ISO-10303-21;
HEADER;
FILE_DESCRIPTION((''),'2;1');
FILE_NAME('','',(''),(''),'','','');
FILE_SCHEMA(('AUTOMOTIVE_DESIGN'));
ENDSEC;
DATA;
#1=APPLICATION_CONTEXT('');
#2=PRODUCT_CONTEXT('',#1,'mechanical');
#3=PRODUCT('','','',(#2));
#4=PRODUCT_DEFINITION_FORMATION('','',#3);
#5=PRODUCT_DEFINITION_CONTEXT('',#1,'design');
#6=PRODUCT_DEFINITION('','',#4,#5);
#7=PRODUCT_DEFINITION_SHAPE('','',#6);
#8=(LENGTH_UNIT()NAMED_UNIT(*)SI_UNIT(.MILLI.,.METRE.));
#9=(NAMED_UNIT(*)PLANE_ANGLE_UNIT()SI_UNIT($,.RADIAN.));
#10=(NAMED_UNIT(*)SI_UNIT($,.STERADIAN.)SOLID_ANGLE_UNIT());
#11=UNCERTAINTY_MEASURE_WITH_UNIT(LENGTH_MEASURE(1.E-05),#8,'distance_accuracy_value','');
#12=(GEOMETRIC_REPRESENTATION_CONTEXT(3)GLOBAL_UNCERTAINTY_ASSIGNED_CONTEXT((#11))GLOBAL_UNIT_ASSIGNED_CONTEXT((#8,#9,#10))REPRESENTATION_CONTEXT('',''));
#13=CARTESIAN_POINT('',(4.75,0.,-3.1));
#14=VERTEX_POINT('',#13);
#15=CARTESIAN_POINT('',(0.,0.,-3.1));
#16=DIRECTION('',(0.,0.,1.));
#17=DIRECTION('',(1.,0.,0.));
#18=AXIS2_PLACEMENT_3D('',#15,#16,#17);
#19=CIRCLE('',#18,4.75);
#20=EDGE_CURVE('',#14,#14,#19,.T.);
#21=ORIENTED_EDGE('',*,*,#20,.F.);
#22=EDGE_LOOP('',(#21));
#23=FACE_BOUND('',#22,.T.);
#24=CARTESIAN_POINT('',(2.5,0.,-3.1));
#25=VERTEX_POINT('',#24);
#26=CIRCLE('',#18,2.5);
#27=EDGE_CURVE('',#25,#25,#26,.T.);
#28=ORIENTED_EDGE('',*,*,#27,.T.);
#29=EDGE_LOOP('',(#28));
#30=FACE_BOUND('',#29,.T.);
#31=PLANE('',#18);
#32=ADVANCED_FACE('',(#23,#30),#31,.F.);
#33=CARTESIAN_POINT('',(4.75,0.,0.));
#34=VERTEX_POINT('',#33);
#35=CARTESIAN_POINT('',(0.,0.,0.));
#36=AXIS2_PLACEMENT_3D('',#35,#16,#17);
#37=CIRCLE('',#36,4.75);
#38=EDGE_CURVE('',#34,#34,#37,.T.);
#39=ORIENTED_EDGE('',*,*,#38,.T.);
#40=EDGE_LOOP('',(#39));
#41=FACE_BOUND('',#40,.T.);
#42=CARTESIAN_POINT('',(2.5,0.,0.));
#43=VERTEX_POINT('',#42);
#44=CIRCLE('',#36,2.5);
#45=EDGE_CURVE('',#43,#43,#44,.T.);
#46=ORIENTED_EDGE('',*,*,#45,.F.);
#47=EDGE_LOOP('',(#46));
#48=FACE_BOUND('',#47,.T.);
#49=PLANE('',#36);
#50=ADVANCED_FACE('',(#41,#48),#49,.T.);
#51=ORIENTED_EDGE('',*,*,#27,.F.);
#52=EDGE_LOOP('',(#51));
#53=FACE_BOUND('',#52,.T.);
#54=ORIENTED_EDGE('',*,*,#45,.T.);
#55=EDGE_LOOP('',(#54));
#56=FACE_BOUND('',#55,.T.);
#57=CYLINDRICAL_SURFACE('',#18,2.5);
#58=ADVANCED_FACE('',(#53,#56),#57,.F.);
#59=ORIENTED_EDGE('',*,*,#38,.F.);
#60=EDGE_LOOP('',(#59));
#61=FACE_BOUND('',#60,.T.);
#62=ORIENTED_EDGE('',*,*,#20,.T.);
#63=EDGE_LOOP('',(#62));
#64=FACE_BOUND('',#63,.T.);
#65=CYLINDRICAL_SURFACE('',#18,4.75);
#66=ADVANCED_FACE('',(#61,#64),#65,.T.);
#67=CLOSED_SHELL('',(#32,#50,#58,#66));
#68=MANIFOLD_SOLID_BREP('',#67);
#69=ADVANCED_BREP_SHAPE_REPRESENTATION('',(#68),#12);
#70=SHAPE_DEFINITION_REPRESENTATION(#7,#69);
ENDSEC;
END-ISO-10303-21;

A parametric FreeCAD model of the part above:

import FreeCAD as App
import Part
import Sketcher

doc = App.newDocument("Part")
body = doc.addObject("PartDesign::Body", "Body")

# Sketch on XY plane
sketch1 = doc.addObject("Sketcher::SketchObject", "Sketch")
body.addObject(sketch1)
sketch1.AttachmentSupport = (doc.XY_Plane, [""])
sketch1.MapMode = "FlatFace"
sketch1.addGeometry(Part.Circle(App.Vector(0, 0, 0), App.Vector(0, 0, 1), 4.75), False)
sketch1.addConstraint(Sketcher.Constraint("Coincident", 0, 3, -1, 1))
sketch1.addConstraint(Sketcher.Constraint("Diameter", 0, 9.5))
pad1 = doc.addObject("PartDesign::Pad", "Pad")
body.addObject(pad1)
pad1.Profile = sketch1
pad1.Length = 3.1
pad1.Reversed = True

# Sketch on XY plane
sketch2 = doc.addObject("Sketcher::SketchObject", "Sketch001")
body.addObject(sketch2)
sketch2.AttachmentSupport = (doc.XY_Plane, [""])
sketch2.MapMode = "FlatFace"
sketch2.addGeometry(Part.Circle(App.Vector(0, 0, 0), App.Vector(0, 0, 1), 2.5), False)
sketch2.addConstraint(Sketcher.Constraint("Coincident", 0, 3, -1, 1))
sketch2.addConstraint(Sketcher.Constraint("Diameter", 0, 5.0))
pocket1 = doc.addObject("PartDesign::Pocket", "Pocket")
body.addObject(pocket1)
pocket1.Profile = sketch2
pocket1.Type = "ThroughAll"

doc.recompute()
